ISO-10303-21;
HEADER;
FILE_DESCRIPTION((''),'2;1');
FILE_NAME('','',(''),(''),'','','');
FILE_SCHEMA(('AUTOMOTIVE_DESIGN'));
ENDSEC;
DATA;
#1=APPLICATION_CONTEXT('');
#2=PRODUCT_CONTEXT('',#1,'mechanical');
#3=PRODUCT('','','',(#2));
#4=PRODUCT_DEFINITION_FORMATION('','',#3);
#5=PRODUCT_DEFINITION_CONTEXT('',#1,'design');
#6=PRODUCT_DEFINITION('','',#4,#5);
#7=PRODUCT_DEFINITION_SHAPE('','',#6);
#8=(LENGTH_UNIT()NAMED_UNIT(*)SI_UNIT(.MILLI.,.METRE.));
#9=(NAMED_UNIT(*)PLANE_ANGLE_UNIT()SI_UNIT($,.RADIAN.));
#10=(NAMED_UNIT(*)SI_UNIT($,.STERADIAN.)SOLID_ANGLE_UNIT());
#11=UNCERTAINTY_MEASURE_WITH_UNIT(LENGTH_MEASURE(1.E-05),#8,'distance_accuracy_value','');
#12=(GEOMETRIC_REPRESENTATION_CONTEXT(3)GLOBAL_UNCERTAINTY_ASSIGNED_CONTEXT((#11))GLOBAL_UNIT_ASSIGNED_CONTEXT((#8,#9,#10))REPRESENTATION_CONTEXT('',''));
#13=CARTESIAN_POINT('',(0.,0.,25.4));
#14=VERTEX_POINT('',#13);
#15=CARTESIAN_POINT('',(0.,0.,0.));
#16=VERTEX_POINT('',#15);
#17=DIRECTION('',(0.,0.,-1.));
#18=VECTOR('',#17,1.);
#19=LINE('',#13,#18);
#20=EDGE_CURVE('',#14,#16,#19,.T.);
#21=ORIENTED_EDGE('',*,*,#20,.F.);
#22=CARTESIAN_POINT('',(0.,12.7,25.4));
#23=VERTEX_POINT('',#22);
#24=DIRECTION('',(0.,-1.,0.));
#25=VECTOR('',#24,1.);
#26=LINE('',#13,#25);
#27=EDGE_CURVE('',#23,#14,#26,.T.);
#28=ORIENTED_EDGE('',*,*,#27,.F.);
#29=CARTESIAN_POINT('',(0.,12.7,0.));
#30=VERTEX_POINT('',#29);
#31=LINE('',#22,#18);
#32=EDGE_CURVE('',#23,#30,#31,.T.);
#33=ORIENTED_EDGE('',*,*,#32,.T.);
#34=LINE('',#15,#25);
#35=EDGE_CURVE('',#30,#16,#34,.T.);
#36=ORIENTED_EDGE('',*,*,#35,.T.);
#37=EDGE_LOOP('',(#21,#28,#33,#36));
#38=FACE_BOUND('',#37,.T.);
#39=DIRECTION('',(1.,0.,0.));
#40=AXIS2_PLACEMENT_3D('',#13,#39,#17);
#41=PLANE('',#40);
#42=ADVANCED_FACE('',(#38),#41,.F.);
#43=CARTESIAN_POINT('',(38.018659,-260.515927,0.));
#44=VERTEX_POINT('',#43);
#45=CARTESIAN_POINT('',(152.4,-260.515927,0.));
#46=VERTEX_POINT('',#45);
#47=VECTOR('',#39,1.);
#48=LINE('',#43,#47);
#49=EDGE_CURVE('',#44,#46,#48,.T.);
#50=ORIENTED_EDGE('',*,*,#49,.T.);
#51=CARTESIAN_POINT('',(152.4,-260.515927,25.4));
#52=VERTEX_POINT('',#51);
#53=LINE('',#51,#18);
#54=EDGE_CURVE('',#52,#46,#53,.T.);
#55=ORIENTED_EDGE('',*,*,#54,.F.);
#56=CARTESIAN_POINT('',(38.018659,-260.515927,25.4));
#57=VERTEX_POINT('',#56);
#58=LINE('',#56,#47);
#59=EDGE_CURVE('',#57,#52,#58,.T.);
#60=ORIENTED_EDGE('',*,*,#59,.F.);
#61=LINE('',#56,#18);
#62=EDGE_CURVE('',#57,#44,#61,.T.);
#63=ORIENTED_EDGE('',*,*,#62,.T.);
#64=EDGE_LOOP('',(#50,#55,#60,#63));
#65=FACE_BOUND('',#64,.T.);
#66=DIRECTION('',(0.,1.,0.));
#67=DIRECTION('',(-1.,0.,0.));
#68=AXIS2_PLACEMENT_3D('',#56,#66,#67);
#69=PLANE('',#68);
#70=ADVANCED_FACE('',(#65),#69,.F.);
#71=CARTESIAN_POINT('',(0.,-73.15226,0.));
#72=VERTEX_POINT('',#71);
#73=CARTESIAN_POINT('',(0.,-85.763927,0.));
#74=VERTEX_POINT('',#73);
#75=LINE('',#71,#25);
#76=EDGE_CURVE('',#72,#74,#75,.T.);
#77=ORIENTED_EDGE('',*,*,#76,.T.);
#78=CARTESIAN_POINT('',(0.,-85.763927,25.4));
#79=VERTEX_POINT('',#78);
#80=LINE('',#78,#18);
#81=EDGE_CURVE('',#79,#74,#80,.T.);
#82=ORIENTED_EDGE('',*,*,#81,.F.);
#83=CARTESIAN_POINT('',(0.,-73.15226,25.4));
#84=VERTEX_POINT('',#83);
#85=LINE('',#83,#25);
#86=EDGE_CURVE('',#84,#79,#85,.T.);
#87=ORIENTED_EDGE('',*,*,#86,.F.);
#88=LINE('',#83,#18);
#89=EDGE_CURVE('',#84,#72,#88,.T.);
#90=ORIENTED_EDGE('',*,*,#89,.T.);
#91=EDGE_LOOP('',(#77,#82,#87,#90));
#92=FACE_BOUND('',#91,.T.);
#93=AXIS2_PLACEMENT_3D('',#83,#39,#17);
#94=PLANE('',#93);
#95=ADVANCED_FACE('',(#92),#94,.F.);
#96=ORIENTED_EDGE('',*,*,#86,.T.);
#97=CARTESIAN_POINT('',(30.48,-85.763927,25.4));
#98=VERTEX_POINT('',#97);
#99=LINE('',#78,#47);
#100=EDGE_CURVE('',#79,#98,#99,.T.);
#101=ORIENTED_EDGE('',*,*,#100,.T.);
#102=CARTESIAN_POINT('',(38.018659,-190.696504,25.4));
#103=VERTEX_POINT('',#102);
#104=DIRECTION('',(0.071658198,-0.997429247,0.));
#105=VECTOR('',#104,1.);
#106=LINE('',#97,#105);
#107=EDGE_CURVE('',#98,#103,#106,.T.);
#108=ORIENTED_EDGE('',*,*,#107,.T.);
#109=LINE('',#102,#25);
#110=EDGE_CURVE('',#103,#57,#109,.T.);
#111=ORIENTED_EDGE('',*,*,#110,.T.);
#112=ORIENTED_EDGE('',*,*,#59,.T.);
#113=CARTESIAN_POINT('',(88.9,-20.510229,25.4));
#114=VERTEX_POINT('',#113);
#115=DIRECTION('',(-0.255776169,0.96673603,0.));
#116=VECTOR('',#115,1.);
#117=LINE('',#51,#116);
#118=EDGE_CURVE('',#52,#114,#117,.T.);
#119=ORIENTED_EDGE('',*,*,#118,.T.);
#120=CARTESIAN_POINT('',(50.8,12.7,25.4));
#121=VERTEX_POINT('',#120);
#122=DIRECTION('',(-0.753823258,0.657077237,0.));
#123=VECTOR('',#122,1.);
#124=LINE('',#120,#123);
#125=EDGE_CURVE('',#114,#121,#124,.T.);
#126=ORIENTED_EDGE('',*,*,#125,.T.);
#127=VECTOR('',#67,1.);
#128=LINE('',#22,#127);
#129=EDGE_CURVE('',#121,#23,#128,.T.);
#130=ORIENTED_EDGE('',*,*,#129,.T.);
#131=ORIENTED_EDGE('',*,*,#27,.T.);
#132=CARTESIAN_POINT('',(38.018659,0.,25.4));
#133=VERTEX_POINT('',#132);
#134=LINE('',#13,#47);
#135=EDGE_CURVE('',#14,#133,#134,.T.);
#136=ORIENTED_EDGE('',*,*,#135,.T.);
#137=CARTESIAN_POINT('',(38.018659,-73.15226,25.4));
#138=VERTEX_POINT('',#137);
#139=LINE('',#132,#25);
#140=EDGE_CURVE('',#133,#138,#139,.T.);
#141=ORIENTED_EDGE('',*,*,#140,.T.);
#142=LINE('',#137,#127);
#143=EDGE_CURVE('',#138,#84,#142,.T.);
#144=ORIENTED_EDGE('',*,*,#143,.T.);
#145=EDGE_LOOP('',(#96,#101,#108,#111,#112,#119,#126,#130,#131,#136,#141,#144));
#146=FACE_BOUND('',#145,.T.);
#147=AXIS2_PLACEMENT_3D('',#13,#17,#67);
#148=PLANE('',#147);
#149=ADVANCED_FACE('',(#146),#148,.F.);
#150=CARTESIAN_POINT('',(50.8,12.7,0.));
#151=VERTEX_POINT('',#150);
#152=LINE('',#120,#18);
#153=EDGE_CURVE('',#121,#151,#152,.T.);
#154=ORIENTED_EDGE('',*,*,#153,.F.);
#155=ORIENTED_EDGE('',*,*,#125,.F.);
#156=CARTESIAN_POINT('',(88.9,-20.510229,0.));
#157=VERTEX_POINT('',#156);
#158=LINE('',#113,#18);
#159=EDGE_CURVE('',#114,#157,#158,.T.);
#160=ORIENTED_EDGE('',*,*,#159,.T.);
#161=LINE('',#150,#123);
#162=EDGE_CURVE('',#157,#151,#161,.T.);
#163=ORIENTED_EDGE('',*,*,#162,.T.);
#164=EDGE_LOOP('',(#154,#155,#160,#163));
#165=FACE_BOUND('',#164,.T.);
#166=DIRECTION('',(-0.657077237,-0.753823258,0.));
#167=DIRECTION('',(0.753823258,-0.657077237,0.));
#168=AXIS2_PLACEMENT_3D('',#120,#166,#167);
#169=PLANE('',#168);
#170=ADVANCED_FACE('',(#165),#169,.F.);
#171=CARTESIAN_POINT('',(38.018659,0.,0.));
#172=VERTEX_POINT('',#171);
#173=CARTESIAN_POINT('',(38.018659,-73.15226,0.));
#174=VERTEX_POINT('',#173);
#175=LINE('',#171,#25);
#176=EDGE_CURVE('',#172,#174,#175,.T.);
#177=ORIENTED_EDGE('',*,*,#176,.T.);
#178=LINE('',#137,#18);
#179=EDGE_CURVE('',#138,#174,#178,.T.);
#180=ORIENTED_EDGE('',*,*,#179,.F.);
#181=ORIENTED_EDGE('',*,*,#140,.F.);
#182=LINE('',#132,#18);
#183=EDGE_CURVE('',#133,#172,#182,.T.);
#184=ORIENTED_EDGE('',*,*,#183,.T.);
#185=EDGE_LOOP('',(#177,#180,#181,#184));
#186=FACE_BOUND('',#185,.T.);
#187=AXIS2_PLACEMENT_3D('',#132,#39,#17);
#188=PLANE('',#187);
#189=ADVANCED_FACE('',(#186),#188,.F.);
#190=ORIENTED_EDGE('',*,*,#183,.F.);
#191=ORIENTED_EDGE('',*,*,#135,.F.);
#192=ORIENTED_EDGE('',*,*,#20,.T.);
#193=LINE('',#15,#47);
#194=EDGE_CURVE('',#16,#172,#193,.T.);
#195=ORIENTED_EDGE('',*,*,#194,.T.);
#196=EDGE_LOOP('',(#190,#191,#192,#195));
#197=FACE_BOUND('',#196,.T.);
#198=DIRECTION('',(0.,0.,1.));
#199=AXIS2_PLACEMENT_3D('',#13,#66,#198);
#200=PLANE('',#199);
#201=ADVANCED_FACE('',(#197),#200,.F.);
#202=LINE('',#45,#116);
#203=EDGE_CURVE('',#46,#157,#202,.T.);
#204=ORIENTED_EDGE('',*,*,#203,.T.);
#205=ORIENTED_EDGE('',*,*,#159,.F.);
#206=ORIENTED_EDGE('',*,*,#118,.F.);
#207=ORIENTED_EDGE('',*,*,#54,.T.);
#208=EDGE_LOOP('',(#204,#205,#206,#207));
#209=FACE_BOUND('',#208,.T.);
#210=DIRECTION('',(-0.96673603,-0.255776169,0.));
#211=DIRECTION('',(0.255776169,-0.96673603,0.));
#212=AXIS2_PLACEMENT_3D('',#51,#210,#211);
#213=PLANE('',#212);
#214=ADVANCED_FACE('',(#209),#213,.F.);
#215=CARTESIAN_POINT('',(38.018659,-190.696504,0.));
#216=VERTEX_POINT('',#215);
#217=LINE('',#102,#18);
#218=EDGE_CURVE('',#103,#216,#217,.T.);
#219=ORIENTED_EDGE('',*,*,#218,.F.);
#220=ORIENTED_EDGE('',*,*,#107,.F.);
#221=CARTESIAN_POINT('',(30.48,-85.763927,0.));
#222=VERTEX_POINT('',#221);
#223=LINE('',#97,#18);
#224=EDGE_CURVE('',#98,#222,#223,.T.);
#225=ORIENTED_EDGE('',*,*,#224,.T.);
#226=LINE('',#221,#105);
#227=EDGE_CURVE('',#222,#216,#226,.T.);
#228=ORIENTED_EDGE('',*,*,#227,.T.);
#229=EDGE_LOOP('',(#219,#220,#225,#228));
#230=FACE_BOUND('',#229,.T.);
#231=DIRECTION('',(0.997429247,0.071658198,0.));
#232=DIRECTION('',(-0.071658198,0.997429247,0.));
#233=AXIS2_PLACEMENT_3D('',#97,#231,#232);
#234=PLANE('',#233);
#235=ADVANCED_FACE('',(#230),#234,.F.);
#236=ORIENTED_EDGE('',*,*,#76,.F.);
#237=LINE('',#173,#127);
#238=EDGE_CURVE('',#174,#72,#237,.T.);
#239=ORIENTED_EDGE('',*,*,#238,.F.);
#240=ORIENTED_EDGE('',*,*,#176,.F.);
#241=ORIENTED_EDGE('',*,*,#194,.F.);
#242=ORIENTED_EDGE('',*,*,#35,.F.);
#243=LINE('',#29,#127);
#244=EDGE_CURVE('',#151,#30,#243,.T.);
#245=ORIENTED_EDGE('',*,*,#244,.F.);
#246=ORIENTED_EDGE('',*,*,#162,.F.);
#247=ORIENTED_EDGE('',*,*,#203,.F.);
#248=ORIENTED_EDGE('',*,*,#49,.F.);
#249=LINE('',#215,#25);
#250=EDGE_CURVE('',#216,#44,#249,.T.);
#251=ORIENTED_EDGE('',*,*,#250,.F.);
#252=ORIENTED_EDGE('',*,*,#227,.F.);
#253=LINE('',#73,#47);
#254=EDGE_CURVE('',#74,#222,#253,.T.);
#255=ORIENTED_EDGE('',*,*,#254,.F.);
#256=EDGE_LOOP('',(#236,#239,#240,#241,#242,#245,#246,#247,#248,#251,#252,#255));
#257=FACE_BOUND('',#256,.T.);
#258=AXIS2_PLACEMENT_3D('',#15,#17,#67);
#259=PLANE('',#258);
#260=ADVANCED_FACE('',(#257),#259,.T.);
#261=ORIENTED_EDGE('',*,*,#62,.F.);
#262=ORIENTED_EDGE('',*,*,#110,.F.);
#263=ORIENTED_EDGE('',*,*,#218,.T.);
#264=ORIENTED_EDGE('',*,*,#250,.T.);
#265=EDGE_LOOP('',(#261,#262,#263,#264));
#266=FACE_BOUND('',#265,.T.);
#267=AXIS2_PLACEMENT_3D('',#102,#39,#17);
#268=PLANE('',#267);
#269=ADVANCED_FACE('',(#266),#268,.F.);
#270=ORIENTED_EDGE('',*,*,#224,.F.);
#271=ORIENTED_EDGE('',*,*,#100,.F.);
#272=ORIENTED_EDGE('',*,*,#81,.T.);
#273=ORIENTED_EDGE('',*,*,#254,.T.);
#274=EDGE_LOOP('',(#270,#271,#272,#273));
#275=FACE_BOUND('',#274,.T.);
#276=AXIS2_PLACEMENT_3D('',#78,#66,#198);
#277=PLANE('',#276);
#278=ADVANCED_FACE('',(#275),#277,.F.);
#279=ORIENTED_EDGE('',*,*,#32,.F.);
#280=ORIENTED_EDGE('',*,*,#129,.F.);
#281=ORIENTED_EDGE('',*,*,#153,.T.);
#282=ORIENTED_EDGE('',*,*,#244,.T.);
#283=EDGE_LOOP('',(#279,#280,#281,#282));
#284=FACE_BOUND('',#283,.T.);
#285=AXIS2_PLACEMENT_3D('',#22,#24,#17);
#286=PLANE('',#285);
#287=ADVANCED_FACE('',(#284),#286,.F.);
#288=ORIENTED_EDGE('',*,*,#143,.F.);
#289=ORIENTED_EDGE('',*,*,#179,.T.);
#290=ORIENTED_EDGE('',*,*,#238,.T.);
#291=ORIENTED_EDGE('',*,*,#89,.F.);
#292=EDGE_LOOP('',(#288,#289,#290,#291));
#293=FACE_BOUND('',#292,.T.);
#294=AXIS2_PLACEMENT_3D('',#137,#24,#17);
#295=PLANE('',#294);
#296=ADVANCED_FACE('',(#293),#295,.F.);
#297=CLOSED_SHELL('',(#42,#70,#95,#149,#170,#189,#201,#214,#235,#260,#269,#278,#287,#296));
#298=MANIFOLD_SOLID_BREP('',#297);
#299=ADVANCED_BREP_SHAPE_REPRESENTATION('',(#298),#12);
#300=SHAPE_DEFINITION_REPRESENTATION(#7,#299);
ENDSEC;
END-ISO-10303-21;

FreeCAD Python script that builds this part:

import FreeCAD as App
import Part
import Sketcher
from FreeCAD import Vector
Q = App.Units.Quantity


def add_polygon(sketch, points):
    """Adds a closed chain of lines whose ends are joined by coincident constraints."""
    first, n = sketch.GeometryCount, len(points)
    for a, b in zip(points, points[1:] + points[:1]):
        sketch.addGeometry(Part.LineSegment(App.Vector(*a, 0), App.Vector(*b, 0)), False)
    for i in range(n):
        sketch.addConstraint(Sketcher.Constraint("Coincident", first + i, 2, first + (i + 1) % n, 1))

doc = App.newDocument("Part")
body = doc.addObject("PartDesign::Body", "Body")

sketch1 = doc.addObject("Sketcher::SketchObject", "Sketch")
body.addObject(sketch1)
sketch1.AttachmentSupport = (doc.XY_Plane, [""])
sketch1.MapMode = "FlatFace"
add_polygon(sketch1, [(0, 13), (0, 0), (38, 0), (38, -73), (0, -73), (0, -86), (30, -86), (38, -191), (38, -261), (152, -261), (89, -21), (51, 13)])
sketch1.addConstraint(Sketcher.Constraint("Vertical", 0))
sketch1.addConstraint(Sketcher.Constraint("Horizontal", 1))
sketch1.addConstraint(Sketcher.Constraint("Vertical", 2))
sketch1.addConstraint(Sketcher.Constraint("Horizontal", 3))
sketch1.addConstraint(Sketcher.Constraint("Vertical", 4))
sketch1.addConstraint(Sketcher.Constraint("Horizontal", 5))
sketch1.addConstraint(Sketcher.Constraint("Vertical", 7))
sketch1.addConstraint(Sketcher.Constraint("Horizontal", 8))
sketch1.addConstraint(Sketcher.Constraint("Horizontal", 11))
sketch1.addConstraint(Sketcher.Constraint("Coincident", 0, 2, -1, 1))
sketch1.addConstraint(Sketcher.Constraint("PointOnObject", 3, 2, -2))
sketch1.addConstraint(Sketcher.Constraint("Vertical", 2, 2, 6, 2))
sketch1.addConstraint(Sketcher.Constraint("DistanceX", 11, 2, 11, 1, Q("2 in")))
sketch1.addConstraint(Sketcher.Constraint("DistanceX", 5, 1, 5, 2, Q("1.2 in")))
sketch1.addConstraint(Sketcher.Constraint("DistanceY", 0, 2, 0, 1, Q("0.5 in")))
sketch1.addConstraint(Sketcher.Constraint("DistanceX", -1, 1, 8, 2, Q("6 in")))
sketch1.addConstraint(Sketcher.Constraint("DistanceX", -1, 1, 9, 2, Q("3.5 in")))
sketch1.addConstraint(Sketcher.Constraint("DistanceY", 7, 2, 5, 2, Q("6.88 in")))
sketch1.addConstraint(Sketcher.Constraint("DistanceX", 1, 1, 1, 2, 38.018659))
sketch1.addConstraint(Sketcher.Constraint("DistanceY", 2, 2, 2, 1, 73.15226))
sketch1.addConstraint(Sketcher.Constraint("DistanceY", 5, 2, 9, 2, 65.253698))
sketch1.addConstraint(Sketcher.Constraint("Distance", 10, 50.542351))
sketch1.addConstraint(Sketcher.Constraint("DistanceY", 7, 2, 7, 1, 69.819423))
pad1 = doc.addObject("PartDesign::Pad", "Pad")
body.addObject(pad1)
pad1.Profile = sketch1
pad1.Length = Q("1 in")

doc.recompute()
